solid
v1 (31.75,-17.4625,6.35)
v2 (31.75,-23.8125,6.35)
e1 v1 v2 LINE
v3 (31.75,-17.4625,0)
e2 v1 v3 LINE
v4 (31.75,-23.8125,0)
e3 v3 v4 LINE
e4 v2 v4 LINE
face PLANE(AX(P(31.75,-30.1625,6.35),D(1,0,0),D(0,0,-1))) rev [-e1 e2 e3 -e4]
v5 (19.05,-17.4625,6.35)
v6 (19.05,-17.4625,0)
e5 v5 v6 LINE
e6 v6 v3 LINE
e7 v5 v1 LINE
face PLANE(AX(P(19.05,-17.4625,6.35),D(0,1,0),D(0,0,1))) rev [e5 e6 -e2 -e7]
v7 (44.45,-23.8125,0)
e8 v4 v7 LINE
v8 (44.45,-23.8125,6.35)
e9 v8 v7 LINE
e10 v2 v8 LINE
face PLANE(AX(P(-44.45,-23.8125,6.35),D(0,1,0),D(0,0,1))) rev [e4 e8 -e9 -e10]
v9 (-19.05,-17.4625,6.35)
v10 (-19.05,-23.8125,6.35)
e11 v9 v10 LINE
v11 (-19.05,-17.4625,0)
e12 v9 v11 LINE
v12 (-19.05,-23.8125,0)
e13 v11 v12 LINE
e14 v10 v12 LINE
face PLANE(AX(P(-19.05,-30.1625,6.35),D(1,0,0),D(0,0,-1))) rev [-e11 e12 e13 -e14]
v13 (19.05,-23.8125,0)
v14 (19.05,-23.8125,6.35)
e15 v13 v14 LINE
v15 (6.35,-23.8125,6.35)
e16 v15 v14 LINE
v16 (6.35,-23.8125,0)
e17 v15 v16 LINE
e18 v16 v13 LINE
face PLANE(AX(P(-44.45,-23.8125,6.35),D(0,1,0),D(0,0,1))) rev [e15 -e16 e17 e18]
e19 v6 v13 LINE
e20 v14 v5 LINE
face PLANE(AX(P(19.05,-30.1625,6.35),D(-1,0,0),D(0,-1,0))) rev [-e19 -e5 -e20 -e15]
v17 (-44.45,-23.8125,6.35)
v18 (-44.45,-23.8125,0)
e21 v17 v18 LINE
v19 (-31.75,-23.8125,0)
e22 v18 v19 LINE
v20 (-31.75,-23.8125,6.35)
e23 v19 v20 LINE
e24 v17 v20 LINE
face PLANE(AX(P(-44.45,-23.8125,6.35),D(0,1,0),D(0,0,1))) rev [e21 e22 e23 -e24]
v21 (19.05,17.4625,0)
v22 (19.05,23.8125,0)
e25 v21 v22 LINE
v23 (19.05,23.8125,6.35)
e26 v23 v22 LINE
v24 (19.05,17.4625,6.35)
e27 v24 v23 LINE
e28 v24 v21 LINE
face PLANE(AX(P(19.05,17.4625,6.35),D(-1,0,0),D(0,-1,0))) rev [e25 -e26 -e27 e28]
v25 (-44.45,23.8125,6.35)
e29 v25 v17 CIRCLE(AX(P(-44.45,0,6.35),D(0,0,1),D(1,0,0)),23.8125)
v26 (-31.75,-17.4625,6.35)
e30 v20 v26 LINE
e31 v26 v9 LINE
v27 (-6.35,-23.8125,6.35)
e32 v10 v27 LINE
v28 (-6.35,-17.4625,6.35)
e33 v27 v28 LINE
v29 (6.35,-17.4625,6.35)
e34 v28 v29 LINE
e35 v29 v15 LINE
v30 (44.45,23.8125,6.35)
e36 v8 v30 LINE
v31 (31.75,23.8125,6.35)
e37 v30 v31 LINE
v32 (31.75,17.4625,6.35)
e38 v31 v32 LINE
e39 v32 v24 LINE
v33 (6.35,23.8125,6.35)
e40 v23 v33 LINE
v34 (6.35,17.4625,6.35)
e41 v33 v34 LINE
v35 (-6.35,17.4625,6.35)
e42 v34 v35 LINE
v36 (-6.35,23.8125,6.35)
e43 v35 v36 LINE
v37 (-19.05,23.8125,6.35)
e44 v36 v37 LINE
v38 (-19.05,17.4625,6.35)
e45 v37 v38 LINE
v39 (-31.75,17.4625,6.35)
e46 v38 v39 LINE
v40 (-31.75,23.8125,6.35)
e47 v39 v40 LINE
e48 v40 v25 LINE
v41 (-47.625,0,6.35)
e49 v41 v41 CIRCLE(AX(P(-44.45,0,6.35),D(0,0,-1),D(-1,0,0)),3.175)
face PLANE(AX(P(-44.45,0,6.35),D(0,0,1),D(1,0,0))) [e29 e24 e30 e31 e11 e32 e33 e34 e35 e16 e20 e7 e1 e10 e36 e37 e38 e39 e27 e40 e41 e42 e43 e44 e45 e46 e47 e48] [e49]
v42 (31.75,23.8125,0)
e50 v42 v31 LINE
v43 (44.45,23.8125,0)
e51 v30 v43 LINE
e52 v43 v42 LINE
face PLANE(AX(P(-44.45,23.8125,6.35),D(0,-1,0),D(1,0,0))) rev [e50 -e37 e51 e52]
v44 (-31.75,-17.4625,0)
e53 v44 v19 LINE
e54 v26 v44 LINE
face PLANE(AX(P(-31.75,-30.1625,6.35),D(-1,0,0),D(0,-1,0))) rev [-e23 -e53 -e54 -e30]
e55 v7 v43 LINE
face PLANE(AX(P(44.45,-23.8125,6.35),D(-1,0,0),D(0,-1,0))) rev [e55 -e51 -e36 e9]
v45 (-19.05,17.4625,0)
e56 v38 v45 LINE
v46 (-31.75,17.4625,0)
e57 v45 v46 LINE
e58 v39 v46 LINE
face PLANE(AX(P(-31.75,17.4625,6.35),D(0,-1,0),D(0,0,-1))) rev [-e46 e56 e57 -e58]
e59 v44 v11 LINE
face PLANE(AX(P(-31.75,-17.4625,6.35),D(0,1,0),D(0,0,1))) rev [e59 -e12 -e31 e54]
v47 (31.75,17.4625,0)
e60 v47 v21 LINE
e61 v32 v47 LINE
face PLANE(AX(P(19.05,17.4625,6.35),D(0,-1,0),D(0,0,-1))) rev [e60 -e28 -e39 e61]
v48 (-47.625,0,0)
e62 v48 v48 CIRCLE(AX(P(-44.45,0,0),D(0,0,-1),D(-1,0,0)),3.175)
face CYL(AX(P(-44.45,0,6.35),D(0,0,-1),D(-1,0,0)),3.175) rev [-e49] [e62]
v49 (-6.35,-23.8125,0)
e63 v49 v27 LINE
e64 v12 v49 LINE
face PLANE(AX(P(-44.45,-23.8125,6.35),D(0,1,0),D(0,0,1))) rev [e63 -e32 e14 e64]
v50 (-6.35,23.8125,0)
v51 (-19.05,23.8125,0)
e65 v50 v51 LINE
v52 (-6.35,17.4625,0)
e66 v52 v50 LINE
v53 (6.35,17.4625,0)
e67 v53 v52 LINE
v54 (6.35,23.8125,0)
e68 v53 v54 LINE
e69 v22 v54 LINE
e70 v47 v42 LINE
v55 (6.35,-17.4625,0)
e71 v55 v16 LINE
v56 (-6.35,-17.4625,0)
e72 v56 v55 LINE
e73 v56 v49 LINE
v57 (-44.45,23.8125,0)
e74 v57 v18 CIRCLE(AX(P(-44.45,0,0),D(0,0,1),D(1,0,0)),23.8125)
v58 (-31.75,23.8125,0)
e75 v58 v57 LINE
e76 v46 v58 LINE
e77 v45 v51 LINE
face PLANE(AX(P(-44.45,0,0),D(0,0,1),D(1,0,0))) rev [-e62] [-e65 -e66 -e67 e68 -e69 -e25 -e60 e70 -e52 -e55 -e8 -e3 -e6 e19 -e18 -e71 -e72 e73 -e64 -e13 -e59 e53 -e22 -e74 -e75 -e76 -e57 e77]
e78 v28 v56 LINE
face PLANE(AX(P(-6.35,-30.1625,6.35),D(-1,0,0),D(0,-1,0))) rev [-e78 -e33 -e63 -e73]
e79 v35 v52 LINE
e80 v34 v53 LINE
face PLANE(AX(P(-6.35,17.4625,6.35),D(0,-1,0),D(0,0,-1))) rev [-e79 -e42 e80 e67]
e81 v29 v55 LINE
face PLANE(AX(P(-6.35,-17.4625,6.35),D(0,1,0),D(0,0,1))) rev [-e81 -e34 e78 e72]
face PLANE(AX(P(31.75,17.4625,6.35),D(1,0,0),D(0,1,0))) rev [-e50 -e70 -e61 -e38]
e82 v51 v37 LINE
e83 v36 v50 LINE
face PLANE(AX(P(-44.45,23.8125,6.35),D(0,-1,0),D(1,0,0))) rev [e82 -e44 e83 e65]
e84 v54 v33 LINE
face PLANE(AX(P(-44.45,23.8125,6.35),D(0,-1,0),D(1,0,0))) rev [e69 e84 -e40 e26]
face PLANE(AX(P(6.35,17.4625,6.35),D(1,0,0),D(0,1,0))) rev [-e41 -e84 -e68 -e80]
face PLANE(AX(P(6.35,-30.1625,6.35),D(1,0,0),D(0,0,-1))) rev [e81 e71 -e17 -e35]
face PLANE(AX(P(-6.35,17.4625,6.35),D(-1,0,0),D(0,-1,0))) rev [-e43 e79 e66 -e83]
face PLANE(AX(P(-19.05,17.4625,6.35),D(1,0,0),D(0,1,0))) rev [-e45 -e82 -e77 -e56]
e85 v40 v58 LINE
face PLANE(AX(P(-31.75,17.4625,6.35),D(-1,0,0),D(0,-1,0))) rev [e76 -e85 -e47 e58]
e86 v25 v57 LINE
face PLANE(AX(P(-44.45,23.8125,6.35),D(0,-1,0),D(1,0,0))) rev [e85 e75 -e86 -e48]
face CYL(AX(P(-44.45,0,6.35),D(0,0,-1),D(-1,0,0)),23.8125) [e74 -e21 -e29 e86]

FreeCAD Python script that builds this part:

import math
import FreeCAD as App
import Part
import Sketcher

V = App.Vector
Q = App.Units.Quantity


def add_polygon(sketch, points):
    """Adds a closed chain of lines whose ends are joined by coincident constraints."""
    first, n = sketch.GeometryCount, len(points)
    for a, b in zip(points, points[1:] + points[:1]):
        sketch.addGeometry(Part.LineSegment(App.Vector(*a, 0), App.Vector(*b, 0)), False)
    for i in range(n):
        sketch.addConstraint(Sketcher.Constraint("Coincident", first + i, 2, first + (i + 1) % n, 1))

doc = App.newDocument("Part")
body = doc.addObject("PartDesign::Body", "Body")

sketch1 = doc.addObject("Sketcher::SketchObject", "Sketch")
body.addObject(sketch1)
sketch1.AttachmentSupport = (doc.XY_Plane, [""])
sketch1.MapMode = "FlatFace"
sketch1.addGeometry([
    Part.LineSegment(V(-44, -24, 0), V(44, -24, 0)),
    Part.LineSegment(V(44, -24, 0), V(44, 24, 0)),
    Part.LineSegment(V(44, 24, 0), V(-44, 24, 0)),
    Part.ArcOfCircle(Part.Circle(V(-44, 0, 0), V(0, 0, 1), 24), math.radians(90), math.radians(270)),
], False)
sketch1.addConstraint([
    Sketcher.Constraint("Coincident", 0, 2, 1, 1),
    Sketcher.Constraint("Coincident", 1, 2, 2, 1),
    Sketcher.Constraint("Tangent", 2, 2, 3, 1),
    Sketcher.Constraint("Tangent", 3, 2, 0, 1),
    Sketcher.Constraint("Horizontal", 0),
    Sketcher.Constraint("Vertical", 1),
    Sketcher.Constraint("Horizontal", 2),
    Sketcher.Constraint("Symmetric", 0, 2, 2, 2, -1, 1),
    Sketcher.Constraint("DistanceX", 0, 1, 0, 2, Q("3.5 in")),
    Sketcher.Constraint("Radius", 3, Q("0.9375 in")),
])
pad1 = doc.addObject("PartDesign::Pad", "Pad")
body.addObject(pad1)
pad1.Profile = sketch1
pad1.Length = Q("0.25 in")

sketch2 = doc.addObject("Sketcher::SketchObject", "Sketch001")
body.addObject(sketch2)
sketch2.AttachmentSupport = (doc.XY_Plane, [""])
sketch2.MapMode = "FlatFace"
sketch2.addGeometry(Part.Circle(V(-44.5, 0, 0), V(0, 0, 1), 3.2), False)
sketch2.addConstraint([
    Sketcher.Constraint("PointOnObject", 0, 3, -1),
    Sketcher.Constraint("Diameter", 0, Q("0.25 in")),
    Sketcher.Constraint("DistanceX", 0, 3, -1, 1, Q("1.75 in")),
])
pocket1 = doc.addObject("PartDesign::Pocket", "Pocket")
body.addObject(pocket1)
pocket1.Profile = sketch2
pocket1.Type = "ThroughAll"
pocket1.Reversed = True

sketch3 = doc.addObject("Sketcher::SketchObject", "Sketch002")
body.addObject(sketch3)
sketch3.AttachmentSupport = (doc.XY_Plane, [""])
sketch3.MapMode = "FlatFace"
add_polygon(sketch3, [(32, 30), (32, 17), (19, 17), (19, 30)])
add_polygon(sketch3, [(32, -17), (32, -30), (19, -30), (19, -17)])
sketch3.addConstraint([
    Sketcher.Constraint("Vertical", 0),
    Sketcher.Constraint("Horizontal", 1),
    Sketcher.Constraint("Vertical", 2),
    Sketcher.Constraint("Horizontal", 3),
    Sketcher.Constraint("Vertical", 4),
    Sketcher.Constraint("Horizontal", 5),
    Sketcher.Constraint("Vertical", 6),
    Sketcher.Constraint("Horizontal", 7),
    Sketcher.Constraint("Symmetric", 3, 2, 4, 2, -1),
    Sketcher.Constraint("Symmetric", 1, 2, 6, 2, -1),
    Sketcher.Constraint("Equal", 7, 0),
    Sketcher.Constraint("DistanceX", 1, 2, 1, 1, Q("0.5 in")),
    Sketcher.Constraint("DistanceX", -1, 1, 0, 2, Q("1.25 in")),
    Sketcher.Constraint("DistanceY", -1, 1, 0, 2, Q("0.6875 in")),
])
pocket2 = doc.addObject("PartDesign::Pocket", "Pocket001")
body.addObject(pocket2)
pocket2.Profile = sketch3
pocket2.Type = "ThroughAll"
pocket2.Reversed = True
doc.recompute()

linearpattern = doc.addObject("PartDesign::LinearPattern", "LinearPattern")
body.addObject(linearpattern)
linearpattern.Originals = [pocket2]
linearpattern.Direction = (doc.X_Axis, [""])
linearpattern.Mode = "offset"
linearpattern.Offset = Q("1 in")
linearpattern.Occurrences = 3
linearpattern.Reversed = True
body.Tip = linearpattern

doc.recompute()
